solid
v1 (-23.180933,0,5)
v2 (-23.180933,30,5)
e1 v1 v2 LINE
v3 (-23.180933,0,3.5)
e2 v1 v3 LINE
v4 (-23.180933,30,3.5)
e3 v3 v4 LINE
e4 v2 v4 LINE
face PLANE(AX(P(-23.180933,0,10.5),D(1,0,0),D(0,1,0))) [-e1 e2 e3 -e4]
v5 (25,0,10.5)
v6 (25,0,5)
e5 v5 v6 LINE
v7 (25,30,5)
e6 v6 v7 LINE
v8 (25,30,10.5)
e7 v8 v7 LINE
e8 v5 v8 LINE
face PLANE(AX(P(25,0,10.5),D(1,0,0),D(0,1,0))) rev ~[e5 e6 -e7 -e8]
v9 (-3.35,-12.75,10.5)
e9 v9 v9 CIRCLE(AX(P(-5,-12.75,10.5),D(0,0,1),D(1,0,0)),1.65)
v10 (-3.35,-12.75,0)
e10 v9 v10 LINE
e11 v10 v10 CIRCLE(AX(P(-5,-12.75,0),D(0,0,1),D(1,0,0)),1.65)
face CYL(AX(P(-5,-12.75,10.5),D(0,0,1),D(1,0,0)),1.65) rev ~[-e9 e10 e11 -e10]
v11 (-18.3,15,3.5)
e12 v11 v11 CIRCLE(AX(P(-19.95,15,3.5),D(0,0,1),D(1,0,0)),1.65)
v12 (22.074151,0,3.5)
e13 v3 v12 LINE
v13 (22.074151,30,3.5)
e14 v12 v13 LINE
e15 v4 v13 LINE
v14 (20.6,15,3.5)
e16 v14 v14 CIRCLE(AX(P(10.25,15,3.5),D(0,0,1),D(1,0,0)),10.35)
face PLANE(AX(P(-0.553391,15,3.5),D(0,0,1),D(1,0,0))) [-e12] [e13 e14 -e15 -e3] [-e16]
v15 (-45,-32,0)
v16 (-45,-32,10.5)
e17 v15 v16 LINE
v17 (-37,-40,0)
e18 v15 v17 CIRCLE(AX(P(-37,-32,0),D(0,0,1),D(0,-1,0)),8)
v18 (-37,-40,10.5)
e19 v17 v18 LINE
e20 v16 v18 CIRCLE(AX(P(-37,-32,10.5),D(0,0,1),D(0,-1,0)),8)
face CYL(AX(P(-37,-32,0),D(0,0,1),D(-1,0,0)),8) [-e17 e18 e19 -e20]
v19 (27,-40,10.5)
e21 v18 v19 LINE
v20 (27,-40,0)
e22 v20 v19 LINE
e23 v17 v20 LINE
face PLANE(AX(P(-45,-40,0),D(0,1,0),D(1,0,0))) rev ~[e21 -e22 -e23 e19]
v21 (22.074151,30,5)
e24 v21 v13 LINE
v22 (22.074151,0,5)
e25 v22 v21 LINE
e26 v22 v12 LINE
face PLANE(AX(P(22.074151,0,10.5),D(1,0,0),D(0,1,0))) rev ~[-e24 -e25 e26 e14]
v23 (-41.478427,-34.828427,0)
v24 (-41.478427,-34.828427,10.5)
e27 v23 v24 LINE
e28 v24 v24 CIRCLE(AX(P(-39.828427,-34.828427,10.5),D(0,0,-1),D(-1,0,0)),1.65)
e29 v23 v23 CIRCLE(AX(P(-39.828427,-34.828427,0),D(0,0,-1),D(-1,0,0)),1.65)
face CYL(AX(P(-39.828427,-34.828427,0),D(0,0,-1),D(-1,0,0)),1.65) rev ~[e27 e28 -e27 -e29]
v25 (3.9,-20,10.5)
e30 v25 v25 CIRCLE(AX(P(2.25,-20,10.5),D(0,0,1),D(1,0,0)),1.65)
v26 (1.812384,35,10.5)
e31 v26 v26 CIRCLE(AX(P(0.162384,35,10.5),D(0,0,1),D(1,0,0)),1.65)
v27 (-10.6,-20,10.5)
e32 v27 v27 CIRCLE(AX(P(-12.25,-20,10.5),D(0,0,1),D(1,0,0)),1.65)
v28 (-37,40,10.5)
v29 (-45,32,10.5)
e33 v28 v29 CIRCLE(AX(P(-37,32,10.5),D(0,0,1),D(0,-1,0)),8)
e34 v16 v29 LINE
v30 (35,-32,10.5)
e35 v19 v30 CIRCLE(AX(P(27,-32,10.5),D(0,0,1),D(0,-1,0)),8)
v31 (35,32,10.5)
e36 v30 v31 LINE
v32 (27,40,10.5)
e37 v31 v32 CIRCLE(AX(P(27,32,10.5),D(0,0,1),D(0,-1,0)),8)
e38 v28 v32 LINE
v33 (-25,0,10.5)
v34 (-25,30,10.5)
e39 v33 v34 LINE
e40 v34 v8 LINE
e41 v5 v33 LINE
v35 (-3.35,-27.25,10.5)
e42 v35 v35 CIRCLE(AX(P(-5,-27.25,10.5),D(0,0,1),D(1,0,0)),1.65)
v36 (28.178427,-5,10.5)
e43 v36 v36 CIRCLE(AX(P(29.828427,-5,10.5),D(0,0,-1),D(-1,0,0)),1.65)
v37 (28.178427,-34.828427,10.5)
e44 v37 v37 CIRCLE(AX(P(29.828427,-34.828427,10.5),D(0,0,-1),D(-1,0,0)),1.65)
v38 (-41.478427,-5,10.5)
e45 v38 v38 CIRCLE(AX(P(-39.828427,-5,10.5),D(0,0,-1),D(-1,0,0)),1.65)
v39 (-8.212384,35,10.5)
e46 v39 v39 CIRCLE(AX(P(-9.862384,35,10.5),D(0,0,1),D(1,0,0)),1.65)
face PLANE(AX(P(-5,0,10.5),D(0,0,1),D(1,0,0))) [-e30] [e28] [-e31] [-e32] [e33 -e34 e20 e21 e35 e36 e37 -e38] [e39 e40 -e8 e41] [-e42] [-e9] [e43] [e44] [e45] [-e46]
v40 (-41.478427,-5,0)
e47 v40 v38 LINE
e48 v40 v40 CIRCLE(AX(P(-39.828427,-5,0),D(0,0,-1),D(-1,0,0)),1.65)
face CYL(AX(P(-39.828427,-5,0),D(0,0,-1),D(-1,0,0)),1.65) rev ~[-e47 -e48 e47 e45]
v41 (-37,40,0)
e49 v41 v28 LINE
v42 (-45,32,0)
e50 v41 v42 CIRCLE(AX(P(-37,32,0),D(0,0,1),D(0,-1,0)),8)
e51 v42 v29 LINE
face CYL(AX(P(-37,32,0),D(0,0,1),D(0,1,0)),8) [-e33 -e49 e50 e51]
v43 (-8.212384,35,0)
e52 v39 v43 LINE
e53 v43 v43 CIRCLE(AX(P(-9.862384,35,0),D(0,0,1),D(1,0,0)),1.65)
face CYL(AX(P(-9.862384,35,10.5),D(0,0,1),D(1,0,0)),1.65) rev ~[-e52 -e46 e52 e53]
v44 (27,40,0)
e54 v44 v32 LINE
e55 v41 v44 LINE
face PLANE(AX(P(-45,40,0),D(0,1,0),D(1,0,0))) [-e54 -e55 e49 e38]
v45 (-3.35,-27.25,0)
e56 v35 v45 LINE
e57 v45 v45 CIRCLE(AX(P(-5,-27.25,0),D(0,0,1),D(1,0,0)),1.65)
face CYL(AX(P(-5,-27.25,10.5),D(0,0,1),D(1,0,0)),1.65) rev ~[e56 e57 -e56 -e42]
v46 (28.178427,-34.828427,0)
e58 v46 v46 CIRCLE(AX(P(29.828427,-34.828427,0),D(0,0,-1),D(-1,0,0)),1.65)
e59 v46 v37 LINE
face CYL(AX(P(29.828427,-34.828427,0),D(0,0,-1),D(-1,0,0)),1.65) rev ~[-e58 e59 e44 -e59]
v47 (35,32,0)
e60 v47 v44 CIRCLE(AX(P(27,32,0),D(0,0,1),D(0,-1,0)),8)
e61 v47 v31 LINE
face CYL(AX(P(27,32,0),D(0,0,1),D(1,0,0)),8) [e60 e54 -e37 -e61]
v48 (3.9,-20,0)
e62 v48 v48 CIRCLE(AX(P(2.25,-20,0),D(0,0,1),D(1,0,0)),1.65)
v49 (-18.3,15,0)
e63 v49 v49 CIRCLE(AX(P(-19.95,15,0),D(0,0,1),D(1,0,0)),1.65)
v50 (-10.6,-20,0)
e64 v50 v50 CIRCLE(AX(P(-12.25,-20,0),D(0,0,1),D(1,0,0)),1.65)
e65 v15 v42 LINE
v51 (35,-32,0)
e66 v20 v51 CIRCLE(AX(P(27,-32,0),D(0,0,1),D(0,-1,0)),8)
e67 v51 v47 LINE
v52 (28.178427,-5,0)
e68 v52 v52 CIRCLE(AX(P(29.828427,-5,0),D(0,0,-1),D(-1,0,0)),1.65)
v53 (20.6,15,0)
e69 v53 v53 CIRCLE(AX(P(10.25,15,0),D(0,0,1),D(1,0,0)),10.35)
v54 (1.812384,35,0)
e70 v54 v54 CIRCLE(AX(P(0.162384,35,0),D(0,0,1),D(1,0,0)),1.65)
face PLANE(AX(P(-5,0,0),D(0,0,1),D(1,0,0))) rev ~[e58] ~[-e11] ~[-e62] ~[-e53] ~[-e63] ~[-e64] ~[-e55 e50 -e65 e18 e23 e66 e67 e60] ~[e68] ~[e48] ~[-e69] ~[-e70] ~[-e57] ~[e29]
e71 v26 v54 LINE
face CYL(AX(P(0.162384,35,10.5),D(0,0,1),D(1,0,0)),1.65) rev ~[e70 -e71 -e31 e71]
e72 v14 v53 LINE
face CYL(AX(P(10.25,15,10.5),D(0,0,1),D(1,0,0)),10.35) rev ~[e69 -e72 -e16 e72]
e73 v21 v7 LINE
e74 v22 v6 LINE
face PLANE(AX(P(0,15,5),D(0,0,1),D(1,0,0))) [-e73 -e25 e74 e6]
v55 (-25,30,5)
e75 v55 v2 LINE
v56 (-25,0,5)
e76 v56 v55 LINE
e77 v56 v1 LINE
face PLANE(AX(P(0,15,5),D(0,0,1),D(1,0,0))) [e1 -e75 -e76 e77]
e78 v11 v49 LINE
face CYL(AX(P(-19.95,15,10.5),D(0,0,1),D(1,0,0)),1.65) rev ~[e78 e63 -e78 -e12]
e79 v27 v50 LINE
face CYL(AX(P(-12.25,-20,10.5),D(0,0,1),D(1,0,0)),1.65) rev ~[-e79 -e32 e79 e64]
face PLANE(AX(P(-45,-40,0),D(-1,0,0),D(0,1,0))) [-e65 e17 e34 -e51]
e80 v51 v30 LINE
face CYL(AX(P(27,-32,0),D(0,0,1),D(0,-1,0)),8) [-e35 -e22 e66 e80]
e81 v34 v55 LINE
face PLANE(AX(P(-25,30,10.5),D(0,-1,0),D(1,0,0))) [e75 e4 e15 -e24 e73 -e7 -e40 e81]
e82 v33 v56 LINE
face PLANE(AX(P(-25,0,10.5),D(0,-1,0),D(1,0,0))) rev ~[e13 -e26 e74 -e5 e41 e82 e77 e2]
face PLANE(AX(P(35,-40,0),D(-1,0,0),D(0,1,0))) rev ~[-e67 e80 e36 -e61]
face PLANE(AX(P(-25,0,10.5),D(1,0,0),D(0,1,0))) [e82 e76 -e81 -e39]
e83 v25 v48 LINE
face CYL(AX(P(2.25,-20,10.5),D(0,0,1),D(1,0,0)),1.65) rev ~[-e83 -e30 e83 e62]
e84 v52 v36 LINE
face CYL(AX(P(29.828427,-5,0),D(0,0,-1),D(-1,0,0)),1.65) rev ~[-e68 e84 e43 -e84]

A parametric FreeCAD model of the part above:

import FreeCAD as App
import Part
import Sketcher
Q = App.Units.Quantity


def edges_at(feature, points):
    """Names of the edges that pass closest to the given points."""
    edges = feature.Shape.Edges
    near = lambda p: min(range(len(edges)), key=lambda i: edges[i].distToShape(Part.Vertex(*p))[0])
    return sorted({f"Edge{near(p) + 1}" for p in points})


def add_polygon(sketch, points):
    """Adds a closed chain of lines whose ends are joined by coincident constraints."""
    first, n = sketch.GeometryCount, len(points)
    for a, b in zip(points, points[1:] + points[:1]):
        sketch.addGeometry(Part.LineSegment(App.Vector(*a, 0), App.Vector(*b, 0)), False)
    for i in range(n):
        sketch.addConstraint(Sketcher.Constraint("Coincident", first + i, 2, first + (i + 1) % n, 1))

doc = App.newDocument("Part")
body = doc.addObject("PartDesign::Body", "Body")

# Sketch on XY plane
sketch1 = body.newObject("Sketcher::SketchObject", "Sketch")
sketch1.AttachmentSupport = (doc.getObject("XY_Plane"), [""])
sketch1.MapMode = "FlatFace"
add_polygon(sketch1, [(-45, 40), (-45, -40), (35, -40), (35, 40)])  # lines 0-3
sketch1.addConstraint([
    Sketcher.Constraint("Vertical", 0),
    Sketcher.Constraint("Horizontal", 1),
    Sketcher.Constraint("Vertical", 2),
    Sketcher.Constraint("Horizontal", 3),
    Sketcher.Constraint("Equal", 3, 0),
    Sketcher.Constraint("DistanceX", 1, 1, 1, 2, Q("80 mm")),
    Sketcher.Constraint("DistanceX", 0, 2, -1, 1, Q("45 mm")),
    Sketcher.Constraint("DistanceY", 0, 2, -1, 1, Q("40 mm")),
])
pad1 = body.newObject("PartDesign::Pad", "Pad")
pad1.Profile = sketch1
pad1.Length = 10.5

# Sketch on XY plane
sketch2 = body.newObject("Sketcher::SketchObject", "Sketch001")
sketch2.AttachmentSupport = (doc.getObject("XY_Plane"), [""])
sketch2.MapMode = "FlatFace"
sketch2.AttachmentOffset = App.Placement(App.Vector(0, 0, 10.5), App.Rotation())
sketch2.addGeometry([
    Part.Circle(App.Vector(10.25, 15, 0), App.Vector(0, 0, 1), 10.35),
    Part.Circle(App.Vector(-19.95, 15, 0), App.Vector(0, 0, 1), 1.65),
    Part.Circle(App.Vector(-9.862384, 35, 0), App.Vector(0, 0, 1), 1.65),
    Part.Circle(App.Vector(0.162384, 35, 0), App.Vector(0, 0, 1), 1.65),
], False)
sketch2.addConstraint([
    Sketcher.Constraint("Equal", 1, 2),
    Sketcher.Constraint("Equal", 2, 3),
    Sketcher.Constraint("Horizontal", 0, 3, 1, 3),
    Sketcher.Constraint("Horizontal", 2, 3, 3, 3),
    Sketcher.Constraint("Diameter", 0, Q("20.7 mm")),
    Sketcher.Constraint("Diameter", 1, Q("3.3 mm")),
    Sketcher.Constraint("DistanceY", -1, 1, 0, 3, Q("15 mm")),
    Sketcher.Constraint("DistanceY", -1, 1, 2, 3, Q("35 mm")),
    Sketcher.Constraint("DistanceX", 1, 3, 0, 3, Q("30.2 mm")),
    Sketcher.Constraint("DistanceX", -1, 1, 0, 3, Q("10.25 mm")),
    Sketcher.Constraint("DistanceX", 2, 3, -1, 1, Q("9.862384 mm")),
    Sketcher.Constraint("DistanceX", -1, 1, 3, 3, Q("0.162384 mm")),
])
pocket1 = body.newObject("PartDesign::Pocket", "Pocket")
pocket1.Profile = sketch2
pocket1.Type = "ThroughAll"

# Sketch on XY plane
sketch3 = body.newObject("Sketcher::SketchObject", "Sketch002")
sketch3.AttachmentSupport = (doc.getObject("XY_Plane"), [""])
sketch3.MapMode = "FlatFace"
sketch3.AttachmentOffset = App.Placement(App.Vector(0, 0, 10.5), App.Rotation())
add_polygon(sketch3, [(-25, 30), (-25, 0), (25, 0), (25, 30)])  # lines 0-3
sketch3.addConstraint([
    Sketcher.Constraint("Vertical", 0),
    Sketcher.Constraint("Horizontal", 1),
    Sketcher.Constraint("Vertical", 2),
    Sketcher.Constraint("Horizontal", 3),
    Sketcher.Constraint("Symmetric", 0, 2, 1, 2, -1, 1),
    Sketcher.Constraint("DistanceX", 1, 1, 1, 2, Q("50 mm")),
    Sketcher.Constraint("DistanceY", 0, 2, 0, 1, Q("30 mm")),
])
pocket2 = body.newObject("PartDesign::Pocket", "Pocket001")
pocket2.Profile = sketch3
pocket2.Length = 5.5

# Sketch on XY plane
sketch4 = body.newObject("Sketcher::SketchObject", "Sketch003")
sketch4.AttachmentSupport = (doc.getObject("XY_Plane"), [""])
sketch4.MapMode = "FlatFace"
sketch4.AttachmentOffset = App.Placement(App.Vector(0, 0, 10.5), App.Rotation())
add_polygon(sketch4, [(-23.180933, 30), (-23.180933, 0), (22.074151, 0), (22.074151, 30)])  # lines 0-3
sketch4.addConstraint([
    Sketcher.Constraint("Vertical", 0),
    Sketcher.Constraint("Horizontal", 1),
    Sketcher.Constraint("Vertical", 2),
    Sketcher.Constraint("Horizontal", 3),
    Sketcher.Constraint("PointOnObject", 0, 2, -1),
    Sketcher.Constraint("DistanceY", 0, 2, 0, 1, Q("30 mm")),
    Sketcher.Constraint("DistanceX", 1, 1, 1, 2, Q("45.255083 mm")),
    Sketcher.Constraint("DistanceX", -1, 1, 1, 2, Q("22.074151 mm")),
])
pocket3 = body.newObject("PartDesign::Pocket", "Pocket002")
pocket3.Profile = sketch4
pocket3.Length = 7

# Sketch on XY plane
sketch5 = body.newObject("Sketcher::SketchObject", "Sketch004")
sketch5.AttachmentSupport = (doc.getObject("XY_Plane"), [""])
sketch5.MapMode = "FlatFace"
sketch5.AttachmentOffset = App.Placement(App.Vector(0, 0, 10.5), App.Rotation())
sketch5.addGeometry([
    Part.Circle(App.Vector(-5, -12.75, 0), App.Vector(0, 0, 1), 1.65),
    Part.Circle(App.Vector(2.25, -20, 0), App.Vector(0, 0, 1), 1.65),
    Part.Circle(App.Vector(-5, -27.25, 0), App.Vector(0, 0, 1), 1.65),
    Part.Circle(App.Vector(-12.25, -20, 0), App.Vector(0, 0, 1), 1.65),
], False)
sketch5.addConstraint([
    Sketcher.Constraint("Equal", 0, 1),
    Sketcher.Constraint("Equal", 1, 2),
    Sketcher.Constraint("Equal", 2, 3),
    Sketcher.Constraint("Horizontal", 1, 3, 3, 3),
    Sketcher.Constraint("Vertical", 0, 3, 2, 3),
    Sketcher.Constraint("Diameter", 0, Q("3.3 mm")),
    Sketcher.Constraint("DistanceX", 0, 3, -1, 1, Q("5 mm")),
    Sketcher.Constraint("DistanceY", 1, 3, -1, 1, Q("20 mm")),
    Sketcher.Constraint("DistanceY", 2, 3, 0, 3, Q("14.5 mm")),
    Sketcher.Constraint("DistanceX", 3, 3, 1, 3, Q("14.5 mm")),
    Sketcher.Constraint("DistanceY", 0, 3, -1, 1, Q("12.75 mm")),
    Sketcher.Constraint("DistanceX", -1, 1, 1, 3, Q("2.25 mm")),
])
pocket4 = body.newObject("PartDesign::Pocket", "Pocket003")
pocket4.Profile = sketch5
pocket4.Type = "ThroughAll"
doc.recompute()

fillet = body.newObject("PartDesign::Fillet", "Fillet")
fillet.Base = (pocket4, edges_at(pocket4, [(-45, -40, 5.25)]))
fillet.Radius = 8
doc.recompute()

fillet2 = body.newObject("PartDesign::Fillet", "Fillet001")
fillet2.Base = (fillet, edges_at(fillet, [(35, -40, 5.25)]))
fillet2.Radius = 8
doc.recompute()

fillet3 = body.newObject("PartDesign::Fillet", "Fillet002")
fillet3.Base = (fillet2, edges_at(fillet2, [(35, 40, 5.25)]))
fillet3.Radius = 8
doc.recompute()

fillet4 = body.newObject("PartDesign::Fillet", "Fillet003")
fillet4.Base = (fillet3, edges_at(fillet3, [(-45, 40, 5.25)]))
fillet4.Radius = 8

# Sketch on XY plane
sketch6 = body.newObject("Sketcher::SketchObject", "Sketch005")
sketch6.AttachmentSupport = (doc.getObject("XY_Plane"), [""])
sketch6.MapMode = "FlatFace"
sketch6.addGeometry([
    Part.Circle(App.Vector(29.828427, -34.828427, 0), App.Vector(0, 0, 1), 1.65),
    Part.Circle(App.Vector(-39.828427, -34.828427, 0), App.Vector(0, 0, 1), 1.65),
    Part.Circle(App.Vector(29.828427, -5, 0), App.Vector(0, 0, 1), 1.65),
    Part.Circle(App.Vector(-39.828427, -5, 0), App.Vector(0, 0, 1), 1.65),
], False)
sketch6.addConstraint([
    Sketcher.Constraint("Equal", 0, 1),
    Sketcher.Constraint("Equal", 1, 2),
    Sketcher.Constraint("Equal", 2, 3),
    Sketcher.Constraint("Horizontal", 0, 3, 1, 3),
    Sketcher.Constraint("Horizontal", 2, 3, 3, 3),
    Sketcher.Constraint("Vertical", 0, 3, 2, 3),
    Sketcher.Constraint("Vertical", 1, 3, 3, 3),
    Sketcher.Constraint("Diameter", 0, Q("3.3 mm")),
    Sketcher.Constraint("DistanceY", 2, 3, -1, 1, Q("5 mm")),
    Sketcher.Constraint("DistanceX", -1, 1, 0, 3, Q("29.828427 mm")),
    Sketcher.Constraint("DistanceY", 0, 3, -1, 1, Q("34.828427 mm")),
    Sketcher.Constraint("DistanceX", 1, 3, -1, 1, Q("39.828427 mm")),
])
pocket5 = body.newObject("PartDesign::Pocket", "Pocket004")
pocket5.Profile = sketch6
pocket5.Type = "ThroughAll"
pocket5.Reversed = True

doc.recompute()
